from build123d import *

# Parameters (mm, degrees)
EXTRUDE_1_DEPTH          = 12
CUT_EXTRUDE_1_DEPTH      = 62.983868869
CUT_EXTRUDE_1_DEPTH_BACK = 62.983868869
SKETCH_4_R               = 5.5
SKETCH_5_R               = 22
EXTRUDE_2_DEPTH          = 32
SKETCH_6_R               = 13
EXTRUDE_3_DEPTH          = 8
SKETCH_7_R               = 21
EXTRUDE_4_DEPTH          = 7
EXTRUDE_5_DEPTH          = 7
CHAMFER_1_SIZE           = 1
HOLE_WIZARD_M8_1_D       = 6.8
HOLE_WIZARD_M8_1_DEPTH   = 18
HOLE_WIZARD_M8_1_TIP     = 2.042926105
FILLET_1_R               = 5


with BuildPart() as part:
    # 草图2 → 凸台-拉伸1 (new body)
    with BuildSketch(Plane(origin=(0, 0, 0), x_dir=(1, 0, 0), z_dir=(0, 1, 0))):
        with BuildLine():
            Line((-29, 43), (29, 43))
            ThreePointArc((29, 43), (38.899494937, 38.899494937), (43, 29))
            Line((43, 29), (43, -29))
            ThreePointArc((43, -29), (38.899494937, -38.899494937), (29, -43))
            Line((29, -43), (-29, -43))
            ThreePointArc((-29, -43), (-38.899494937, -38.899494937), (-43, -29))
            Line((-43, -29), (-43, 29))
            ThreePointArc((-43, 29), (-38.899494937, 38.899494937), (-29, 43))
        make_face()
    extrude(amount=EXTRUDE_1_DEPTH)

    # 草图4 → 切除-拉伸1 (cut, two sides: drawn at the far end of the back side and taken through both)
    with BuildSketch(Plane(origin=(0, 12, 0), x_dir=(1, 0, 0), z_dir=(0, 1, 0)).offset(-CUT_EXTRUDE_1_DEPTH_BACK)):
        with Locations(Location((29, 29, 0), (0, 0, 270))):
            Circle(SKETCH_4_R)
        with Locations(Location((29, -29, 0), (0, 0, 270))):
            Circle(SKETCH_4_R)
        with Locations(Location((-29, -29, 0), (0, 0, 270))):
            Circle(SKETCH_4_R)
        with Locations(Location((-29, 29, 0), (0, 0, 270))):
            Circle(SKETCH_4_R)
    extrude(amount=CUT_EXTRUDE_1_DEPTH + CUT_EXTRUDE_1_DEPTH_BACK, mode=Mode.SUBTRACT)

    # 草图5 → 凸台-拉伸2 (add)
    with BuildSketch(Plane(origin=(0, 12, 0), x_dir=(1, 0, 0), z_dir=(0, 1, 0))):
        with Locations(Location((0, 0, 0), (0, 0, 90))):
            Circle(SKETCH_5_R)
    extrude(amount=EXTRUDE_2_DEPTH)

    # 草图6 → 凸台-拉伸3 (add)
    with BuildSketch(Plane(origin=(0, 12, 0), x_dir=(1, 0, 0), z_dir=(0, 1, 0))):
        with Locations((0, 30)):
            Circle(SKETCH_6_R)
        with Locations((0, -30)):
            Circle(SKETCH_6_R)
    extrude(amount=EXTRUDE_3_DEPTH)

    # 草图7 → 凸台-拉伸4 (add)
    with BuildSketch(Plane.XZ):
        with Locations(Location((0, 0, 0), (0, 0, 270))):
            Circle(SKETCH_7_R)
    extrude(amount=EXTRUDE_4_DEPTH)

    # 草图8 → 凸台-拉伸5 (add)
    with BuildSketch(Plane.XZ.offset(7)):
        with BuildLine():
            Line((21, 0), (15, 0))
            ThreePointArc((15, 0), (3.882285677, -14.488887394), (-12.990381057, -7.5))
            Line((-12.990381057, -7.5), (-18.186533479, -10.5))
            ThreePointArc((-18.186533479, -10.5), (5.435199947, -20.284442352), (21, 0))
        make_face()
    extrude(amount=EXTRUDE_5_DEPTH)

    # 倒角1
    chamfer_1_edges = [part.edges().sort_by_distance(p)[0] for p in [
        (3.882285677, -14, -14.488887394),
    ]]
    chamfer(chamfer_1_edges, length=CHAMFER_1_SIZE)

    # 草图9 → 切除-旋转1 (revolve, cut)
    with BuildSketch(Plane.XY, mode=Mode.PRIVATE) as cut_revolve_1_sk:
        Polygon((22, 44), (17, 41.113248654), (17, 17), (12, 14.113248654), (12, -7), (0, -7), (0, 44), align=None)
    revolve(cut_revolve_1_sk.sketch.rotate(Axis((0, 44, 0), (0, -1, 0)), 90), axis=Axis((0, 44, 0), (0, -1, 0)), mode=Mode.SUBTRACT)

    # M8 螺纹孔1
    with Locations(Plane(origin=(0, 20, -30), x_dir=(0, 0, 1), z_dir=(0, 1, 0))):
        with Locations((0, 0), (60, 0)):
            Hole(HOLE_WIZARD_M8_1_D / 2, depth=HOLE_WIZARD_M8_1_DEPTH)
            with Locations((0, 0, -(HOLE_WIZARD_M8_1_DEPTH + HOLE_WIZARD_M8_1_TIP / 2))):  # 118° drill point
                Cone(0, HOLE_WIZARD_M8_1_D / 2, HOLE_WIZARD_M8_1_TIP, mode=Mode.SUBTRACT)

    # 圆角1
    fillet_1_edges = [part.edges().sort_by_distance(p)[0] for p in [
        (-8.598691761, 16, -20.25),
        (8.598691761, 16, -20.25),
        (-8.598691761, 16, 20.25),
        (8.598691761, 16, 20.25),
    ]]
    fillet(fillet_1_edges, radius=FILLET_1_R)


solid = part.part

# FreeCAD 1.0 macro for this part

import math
import FreeCAD as App
import Part
import Sketcher
Q = App.Units.Quantity


def edges_at(feature, points):
    """Names of the edges that pass closest to the given points."""
    edges = feature.Shape.Edges
    near = lambda p: min(range(len(edges)), key=lambda i: edges[i].distToShape(Part.Vertex(*p))[0])
    return sorted({f"Edge{near(p) + 1}" for p in points})


def add_polygon(sketch, points):
    """Adds a closed chain of lines whose ends are joined by coincident constraints."""
    first, n = sketch.GeometryCount, len(points)
    for a, b in zip(points, points[1:] + points[:1]):
        sketch.addGeometry(Part.LineSegment(App.Vector(*a, 0), App.Vector(*b, 0)), False)
    for i in range(n):
        sketch.addConstraint(Sketcher.Constraint("Coincident", first + i, 2, first + (i + 1) % n, 1))

doc = App.newDocument("Part")
body = doc.addObject("PartDesign::Body", "Body")

# Sketch on XZ plane
sketch1 = doc.addObject("Sketcher::SketchObject", "Sketch")
body.addObject(sketch1)
sketch1.AttachmentSupport = (doc.XZ_Plane, [""])
sketch1.MapMode = "FlatFace"
sketch1.addGeometry(Part.LineSegment(App.Vector(29, -43, 0), App.Vector(-29, -43, 0)), False)
sketch1.addGeometry(Part.ArcOfCircle(Part.Circle(App.Vector(-29, -29, 0), App.Vector(0, 0, 1), 14), math.radians(180), math.radians(270)), False)
sketch1.addGeometry(Part.LineSegment(App.Vector(-43, -29, 0), App.Vector(-43, 29, 0)), False)
sketch1.addGeometry(Part.ArcOfCircle(Part.Circle(App.Vector(-29, 29, 0), App.Vector(0, 0, 1), 14), math.radians(90), math.radians(180)), False)
sketch1.addGeometry(Part.LineSegment(App.Vector(-29, 43, 0), App.Vector(29, 43, 0)), False)
sketch1.addGeometry(Part.ArcOfCircle(Part.Circle(App.Vector(29, 29, 0), App.Vector(0, 0, 1), 14), math.radians(0), math.radians(90)), False)
sketch1.addGeometry(Part.LineSegment(App.Vector(43, 29, 0), App.Vector(43, -29, 0)), False)
sketch1.addGeometry(Part.ArcOfCircle(Part.Circle(App.Vector(29, -29, 0), App.Vector(0, 0, 1), 14), math.radians(-90), math.radians(0)), False)
sketch1.addConstraint(Sketcher.Constraint("Tangent", 0, 2, 1, 2))
sketch1.addConstraint(Sketcher.Constraint("Tangent", 1, 1, 2, 1))
sketch1.addConstraint(Sketcher.Constraint("Tangent", 2, 2, 3, 2))
sketch1.addConstraint(Sketcher.Constraint("Tangent", 3, 1, 4, 1))
sketch1.addConstraint(Sketcher.Constraint("Tangent", 4, 2, 5, 2))
sketch1.addConstraint(Sketcher.Constraint("Tangent", 5, 1, 6, 1))
sketch1.addConstraint(Sketcher.Constraint("Tangent", 6, 2, 7, 2))
sketch1.addConstraint(Sketcher.Constraint("Tangent", 7, 1, 0, 1))
sketch1.addConstraint(Sketcher.Constraint("Horizontal", 0))
sketch1.addConstraint(Sketcher.Constraint("Vertical", 2))
sketch1.addConstraint(Sketcher.Constraint("Horizontal", 4))
sketch1.addConstraint(Sketcher.Constraint("Vertical", 6))
sketch1.addConstraint(Sketcher.Constraint("Equal", 1, 3))
sketch1.addConstraint(Sketcher.Constraint("Equal", 3, 5))
sketch1.addConstraint(Sketcher.Constraint("Equal", 5, 7))
sketch1.addConstraint(Sketcher.Constraint("Symmetric", 1, 3, 5, 3, -1, 1))
sketch1.addConstraint(Sketcher.Constraint("Equal", 4, 2))
sketch1.addConstraint(Sketcher.Constraint("Radius", 1, Q("14 mm")))
sketch1.addConstraint(Sketcher.Constraint("DistanceX", 0, 2, 0, 1, Q("58 mm")))
pad1 = doc.addObject("PartDesign::Pad", "Pad")
body.addObject(pad1)
pad1.Profile = sketch1
pad1.Length = 12
pad1.Reversed = True

# Sketch on XZ plane
sketch2 = doc.addObject("Sketcher::SketchObject", "Sketch001")
body.addObject(sketch2)
sketch2.AttachmentSupport = (doc.XZ_Plane, [""])
sketch2.MapMode = "FlatFace"
sketch2.AttachmentOffset = App.Placement(App.Vector(0, 0, -12), App.Rotation())
sketch2.addGeometry(Part.Circle(App.Vector(29, -29, 0), App.Vector(0, 0, 1), 6), False)
sketch2.addGeometry(Part.Circle(App.Vector(29, 29, 0), App.Vector(0, 0, 1), 6), False)
sketch2.addGeometry(Part.Circle(App.Vector(-29, 29, 0), App.Vector(0, 0, 1), 6), False)
sketch2.addGeometry(Part.Circle(App.Vector(-29, -29, 0), App.Vector(0, 0, 1), 6), False)
sketch2.addConstraint(Sketcher.Constraint("Equal", 0, 1))
sketch2.addConstraint(Sketcher.Constraint("Equal", 1, 2))
sketch2.addConstraint(Sketcher.Constraint("Equal", 2, 3))
sketch2.addConstraint(Sketcher.Constraint("Symmetric", 0, 3, 2, 3, -1, 1))
sketch2.addConstraint(Sketcher.Constraint("Symmetric", 1, 3, 3, 3, -1, 1))
sketch2.addConstraint(Sketcher.Constraint("Symmetric", 1, 3, 2, 3, -2))
sketch2.addConstraint(Sketcher.Constraint("Diameter", 0, Q("11 mm")))
sketch2.addConstraint(Sketcher.Constraint("DistanceX", -1, 1, 0, 3, Q("29 mm")))
sketch2.addConstraint(Sketcher.Constraint("DistanceY", 0, 3, -1, 1, Q("29 mm")))
pocket1 = doc.addObject("PartDesign::Pocket", "Pocket")
body.addObject(pocket1)
pocket1.Profile = sketch2
pocket1.Type = "ThroughAll"
pocket1.Midplane = True

# Sketch on XZ plane
sketch3 = doc.addObject("Sketcher::SketchObject", "Sketch002")
body.addObject(sketch3)
sketch3.AttachmentSupport = (doc.XZ_Plane, [""])
sketch3.MapMode = "FlatFace"
sketch3.AttachmentOffset = App.Placement(App.Vector(0, 0, -12), App.Rotation())
sketch3.addGeometry(Part.Circle(App.Vector(0, 0, 0), App.Vector(0, 0, 1), 22), False)
sketch3.addConstraint(Sketcher.Constraint("Coincident", 0, 3, -1, 1))
sketch3.addConstraint(Sketcher.Constraint("Diameter", 0, Q("44 mm")))
pad2 = doc.addObject("PartDesign::Pad", "Pad001")
body.addObject(pad2)
pad2.Profile = sketch3
pad2.Length = 32
pad2.Reversed = True

# Sketch on XZ plane
sketch4 = doc.addObject("Sketcher::SketchObject", "Sketch003")
body.addObject(sketch4)
sketch4.AttachmentSupport = (doc.XZ_Plane, [""])
sketch4.MapMode = "FlatFace"
sketch4.AttachmentOffset = App.Placement(App.Vector(0, 0, -12), App.Rotation())
sketch4.addGeometry(Part.Circle(App.Vector(0, -30, 0), App.Vector(0, 0, 1), 13), False)
sketch4.addGeometry(Part.Circle(App.Vector(0, 30, 0), App.Vector(0, 0, 1), 13), False)
sketch4.addConstraint(Sketcher.Constraint("Equal", 0, 1))
sketch4.addConstraint(Sketcher.Constraint("Symmetric", 0, 3, 1, 3, -1, 1))
sketch4.addConstraint(Sketcher.Constraint("PointOnObject", 0, 3, -2))
sketch4.addConstraint(Sketcher.Constraint("Diameter", 0, Q("26 mm")))
sketch4.addConstraint(Sketcher.Constraint("DistanceY", 0, 3, -1, 1, Q("30 mm")))
pad3 = doc.addObject("PartDesign::Pad", "Pad002")
body.addObject(pad3)
pad3.Profile = sketch4
pad3.Length = 8
pad3.Reversed = True

# Sketch on XZ plane
sketch5 = doc.addObject("Sketcher::SketchObject", "Sketch004")
body.addObject(sketch5)
sketch5.AttachmentSupport = (doc.XZ_Plane, [""])
sketch5.MapMode = "FlatFace"
sketch5.addGeometry(Part.Circle(App.Vector(0, 0, 0), App.Vector(0, 0, 1), 21), False)
sketch5.addConstraint(Sketcher.Constraint("Coincident", 0, 3, -1, 1))
sketch5.addConstraint(Sketcher.Constraint("Diameter", 0, Q("42 mm")))
pad4 = doc.addObject("PartDesign::Pad", "Pad003")
body.addObject(pad4)
pad4.Profile = sketch5
pad4.Length = 7

# Sketch on XZ plane
sketch6 = doc.addObject("Sketcher::SketchObject", "Sketch005")
body.addObject(sketch6)
sketch6.AttachmentSupport = (doc.XZ_Plane, [""])
sketch6.MapMode = "FlatFace"
sketch6.AttachmentOffset = App.Placement(App.Vector(0, 0, 7), App.Rotation())
sketch6.addGeometry(Part.LineSegment(App.Vector(21, 0, 0), App.Vector(15, 0, 0)), False)
sketch6.addGeometry(Part.ArcOfCircle(Part.Circle(App.Vector(0, 0, 0), App.Vector(0, 0, 1), 15), math.radians(-150), math.radians(0)), False)
sketch6.addGeometry(Part.LineSegment(App.Vector(-13, -8, 0), App.Vector(-18, -10, 0)), False)
sketch6.addGeometry(Part.ArcOfCircle(Part.Circle(App.Vector(0, 0, 0), App.Vector(0, 0, 1), 21), math.radians(-150), math.radians(0)), False)
sketch6.addConstraint(Sketcher.Constraint("Coincident", 0, 2, 1, 2))
sketch6.addConstraint(Sketcher.Constraint("Coincident", 1, 1, 2, 1))
sketch6.addConstraint(Sketcher.Constraint("Coincident", 2, 2, 3, 1))
sketch6.addConstraint(Sketcher.Constraint("Coincident", 3, 2, 0, 1))
sketch6.addConstraint(Sketcher.Constraint("Horizontal", 0))
sketch6.addConstraint(Sketcher.Constraint("Coincident", 1, 3, -1, 1))
sketch6.addConstraint(Sketcher.Constraint("Coincident", 3, 3, -1, 1))
sketch6.addConstraint(Sketcher.Constraint("PointOnObject", 0, 2, -1))
sketch6.addConstraint(Sketcher.Constraint("Radius", 1, Q("15 mm")))
sketch6.addConstraint(Sketcher.Constraint("Radius", 3, Q("21 mm")))
sketch6.addConstraint(Sketcher.Constraint("Angle", 2, Q("-150 deg")))
sketch6.addConstraint(Sketcher.Constraint("DistanceY", 1, 1, -1, 1, Q("7.5 mm")))
pad5 = doc.addObject("PartDesign::Pad", "Pad004")
body.addObject(pad5)
pad5.Profile = sketch6
pad5.Length = 7
doc.recompute()

chamfer = doc.addObject("PartDesign::Chamfer", "Chamfer")
body.addObject(chamfer)
chamfer.Base = (pad5, edges_at(pad5, [(3.882, -14, -14.489)]))
chamfer.Size = 1

# Sketch on XY plane
sketch7 = doc.addObject("Sketcher::SketchObject", "Sketch006")
body.addObject(sketch7)
sketch7.AttachmentSupport = (doc.XY_Plane, [""])
sketch7.MapMode = "FlatFace"
add_polygon(sketch7, [(17, 41), (22, 44), (0, 44), (0, -7), (12, -7), (12, 14), (17, 17)])  # lines 0-6
sketch7.addConstraint(Sketcher.Constraint("Horizontal", 1))
sketch7.addConstraint(Sketcher.Constraint("Vertical", 2))
sketch7.addConstraint(Sketcher.Constraint("Horizontal", 3))
sketch7.addConstraint(Sketcher.Constraint("Vertical", 4))
sketch7.addConstraint(Sketcher.Constraint("Vertical", 6))
sketch7.addConstraint(Sketcher.Constraint("PointOnObject", 1, 2, -2))
sketch7.addConstraint(Sketcher.Constraint("Parallel", 0, 5))
sketch7.addConstraint(Sketcher.Constraint("Equal", 0, 5))
sketch7.addConstraint(Sketcher.Constraint("DistanceX", 1, 2, 1, 1, Q("22 mm")))
sketch7.addConstraint(Sketcher.Constraint("DistanceX", 3, 1, 3, 2, Q("12 mm")))
sketch7.addConstraint(Sketcher.Constraint("DistanceY", 2, 2, 2, 1, Q("51 mm")))
sketch7.addConstraint(Sketcher.Constraint("Angle", 0, Q("30 deg")))
sketch7.addConstraint(Sketcher.Constraint("DistanceY", -1, 1, 0, 2, Q("44 mm")))
sketch7.addConstraint(Sketcher.Constraint("DistanceY", -1, 1, 5, 2, Q("17 mm")))
groove = doc.addObject("PartDesign::Groove", "Groove")
body.addObject(groove)
groove.Profile = sketch7
groove.ReferenceAxis = (sketch7, ["V_Axis"])
groove.Angle = 360

# Sketch on XZ plane
sketch8 = doc.addObject("Sketcher::SketchObject", "Sketch007")
body.addObject(sketch8)
sketch8.AttachmentSupport = (doc.XZ_Plane, [""])
sketch8.MapMode = "FlatFace"
sketch8.AttachmentOffset = App.Placement(App.Vector(0, 0, -20), App.Rotation())
sketch8.addGeometry(Part.Circle(App.Vector(0, -30, 0), App.Vector(0, 0, 1), 3.4), False)
sketch8.addGeometry(Part.Circle(App.Vector(0, 30, 0), App.Vector(0, 0, 1), 3.4), False)
sketch8.addConstraint(Sketcher.Constraint("Equal", 0, 1))
sketch8.addConstraint(Sketcher.Constraint("Symmetric", 0, 3, 1, 3, -1, 1))
sketch8.addConstraint(Sketcher.Constraint("PointOnObject", 0, 3, -2))
sketch8.addConstraint(Sketcher.Constraint("Diameter", 0, Q("6.8 mm")))
sketch8.addConstraint(Sketcher.Constraint("DistanceY", 0, 3, -1, 1, Q("30 mm")))
doc.recompute()
hole = doc.addObject("PartDesign::Hole", "Hole")
body.addObject(hole)
hole.Profile = sketch8
hole.ThreadType = "None"
hole.Diameter = 6.8
hole.DepthType = "Dimension"
hole.Depth = 18
hole.DrillPoint = "Angled"
hole.DrillPointAngle = 118
hole.Reversed = True
doc.recompute()

fillet = doc.addObject("PartDesign::Fillet", "Fillet")
body.addObject(fillet)
fillet.Base = (hole, edges_at(hole, [
    (-8.599, 16, -20.25),
    (8.599, 16, -20.25),
    (-8.599, 16, 20.25),
    (8.599, 16, 20.25),
]))
fillet.Radius = 5

doc.recompute()
